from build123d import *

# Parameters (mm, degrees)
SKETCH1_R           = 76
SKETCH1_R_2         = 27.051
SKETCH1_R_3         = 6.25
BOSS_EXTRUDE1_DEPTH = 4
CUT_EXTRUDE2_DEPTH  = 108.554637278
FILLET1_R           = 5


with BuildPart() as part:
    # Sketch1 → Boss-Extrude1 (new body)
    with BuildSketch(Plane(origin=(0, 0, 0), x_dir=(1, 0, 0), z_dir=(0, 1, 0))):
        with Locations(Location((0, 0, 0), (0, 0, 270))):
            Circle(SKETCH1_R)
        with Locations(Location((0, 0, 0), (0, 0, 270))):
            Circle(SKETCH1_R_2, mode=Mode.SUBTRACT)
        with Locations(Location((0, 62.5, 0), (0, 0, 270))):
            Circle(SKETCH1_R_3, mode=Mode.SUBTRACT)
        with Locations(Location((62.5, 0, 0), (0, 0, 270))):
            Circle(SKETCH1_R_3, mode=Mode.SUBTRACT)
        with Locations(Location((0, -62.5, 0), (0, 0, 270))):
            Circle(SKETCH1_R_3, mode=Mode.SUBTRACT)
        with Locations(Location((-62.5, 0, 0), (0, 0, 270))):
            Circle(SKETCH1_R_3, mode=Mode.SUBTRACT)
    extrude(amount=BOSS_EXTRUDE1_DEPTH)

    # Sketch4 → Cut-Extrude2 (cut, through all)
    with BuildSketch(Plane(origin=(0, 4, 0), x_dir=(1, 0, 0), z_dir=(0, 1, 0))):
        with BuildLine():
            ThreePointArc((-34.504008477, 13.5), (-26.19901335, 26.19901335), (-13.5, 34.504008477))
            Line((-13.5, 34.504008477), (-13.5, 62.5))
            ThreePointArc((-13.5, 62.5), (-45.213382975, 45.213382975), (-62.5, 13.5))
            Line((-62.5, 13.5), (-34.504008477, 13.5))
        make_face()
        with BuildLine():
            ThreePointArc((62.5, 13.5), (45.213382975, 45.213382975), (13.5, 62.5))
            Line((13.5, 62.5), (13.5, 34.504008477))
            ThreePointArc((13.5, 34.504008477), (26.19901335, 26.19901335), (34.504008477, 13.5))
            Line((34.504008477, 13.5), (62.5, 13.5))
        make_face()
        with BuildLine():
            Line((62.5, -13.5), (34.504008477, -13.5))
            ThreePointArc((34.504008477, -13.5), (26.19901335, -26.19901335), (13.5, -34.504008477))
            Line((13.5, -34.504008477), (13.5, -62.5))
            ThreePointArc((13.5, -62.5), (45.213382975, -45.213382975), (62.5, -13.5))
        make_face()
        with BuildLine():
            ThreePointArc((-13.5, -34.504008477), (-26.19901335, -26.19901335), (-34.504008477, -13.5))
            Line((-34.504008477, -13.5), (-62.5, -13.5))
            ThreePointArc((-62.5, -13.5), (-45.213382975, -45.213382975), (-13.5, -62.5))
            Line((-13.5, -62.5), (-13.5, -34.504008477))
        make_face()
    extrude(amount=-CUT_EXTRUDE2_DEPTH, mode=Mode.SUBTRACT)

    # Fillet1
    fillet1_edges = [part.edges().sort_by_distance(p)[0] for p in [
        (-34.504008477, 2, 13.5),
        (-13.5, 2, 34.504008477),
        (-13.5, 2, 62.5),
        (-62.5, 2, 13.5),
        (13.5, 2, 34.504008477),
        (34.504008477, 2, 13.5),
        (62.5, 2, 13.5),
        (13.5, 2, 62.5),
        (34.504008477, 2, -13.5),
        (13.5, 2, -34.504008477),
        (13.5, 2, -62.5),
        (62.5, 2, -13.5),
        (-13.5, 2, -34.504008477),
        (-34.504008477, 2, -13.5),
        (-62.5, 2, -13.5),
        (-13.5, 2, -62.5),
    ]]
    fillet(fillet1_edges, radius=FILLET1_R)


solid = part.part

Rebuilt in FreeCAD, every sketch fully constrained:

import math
import FreeCAD as App
import Part
import Sketcher
from FreeCAD import Vector


def edges_at(feature, points):
    """Names of the edges that pass closest to the given points."""
    edges = feature.Shape.Edges
    near = lambda p: min(range(len(edges)), key=lambda i: edges[i].distToShape(Part.Vertex(*p))[0])
    return sorted({f"Edge{near(p) + 1}" for p in points})

doc = App.newDocument("Part")
body = doc.addObject("PartDesign::Body", "Body")

# Sketch on XZ plane
sketch1 = doc.addObject("Sketcher::SketchObject", "Sketch")
body.addObject(sketch1)
sketch1.AttachmentSupport = (doc.XZ_Plane, [""])
sketch1.MapMode = "FlatFace"
sketch1.addGeometry(Part.Circle(Vector(0, 0, 0), Vector(0, 0, 1), 76), False)
sketch1.addGeometry(Part.Circle(Vector(0, -62, 0), Vector(0, 0, 1), 6), False)
sketch1.addGeometry(Part.Circle(Vector(-62, 0, 0), Vector(0, 0, 1), 6), False)
sketch1.addGeometry(Part.Circle(Vector(0, 0, 0), Vector(0, 0, 1), 27), False)
sketch1.addGeometry(Part.Circle(Vector(0, 62, 0), Vector(0, 0, 1), 6), False)
sketch1.addGeometry(Part.Circle(Vector(62, 0, 0), Vector(0, 0, 1), 6), False)
sketch1.addConstraint(Sketcher.Constraint("Coincident", 0, 3, -1, 1))
sketch1.addConstraint(Sketcher.Constraint("Coincident", 3, 3, -1, 1))
sketch1.addConstraint(Sketcher.Constraint("Equal", 1, 2))
sketch1.addConstraint(Sketcher.Constraint("Equal", 2, 4))
sketch1.addConstraint(Sketcher.Constraint("Equal", 4, 5))
sketch1.addConstraint(Sketcher.Constraint("Symmetric", 1, 3, 4, 3, -1, 1))
sketch1.addConstraint(Sketcher.Constraint("Symmetric", 2, 3, 5, 3, -1, 1))
sketch1.addConstraint(Sketcher.Constraint("PointOnObject", 1, 3, -2))
sketch1.addConstraint(Sketcher.Constraint("PointOnObject", 2, 3, -1))
sketch1.addConstraint(Sketcher.Constraint("Diameter", 0, 152.0))
sketch1.addConstraint(Sketcher.Constraint("Diameter", 1, 12.5))
sketch1.addConstraint(Sketcher.Constraint("Diameter", 3, 54.102))
sketch1.addConstraint(Sketcher.Constraint("DistanceY", 1, 3, 4, 3, 125.0))
sketch1.addConstraint(Sketcher.Constraint("DistanceX", 2, 3, 5, 3, 125.0))
pad1 = doc.addObject("PartDesign::Pad", "Pad")
body.addObject(pad1)
pad1.Profile = sketch1
pad1.Length = 4
pad1.Reversed = True

# Sketch on XZ plane
sketch2 = doc.addObject("Sketcher::SketchObject", "Sketch001")
body.addObject(sketch2)
sketch2.AttachmentSupport = (doc.XZ_Plane, [""])
sketch2.MapMode = "FlatFace"
sketch2.AttachmentOffset = App.Placement(Vector(0, 0, -4), App.Rotation())
sketch2.addGeometry(Part.ArcOfCircle(Part.Circle(Vector(0, 0, 0), Vector(0, 0, 1), 37), math.radians(-159), math.radians(-111)), False)
sketch2.addGeometry(Part.LineSegment(Vector(-14, -35, 0), Vector(-14, -62, 0)), False)
sketch2.addGeometry(Part.ArcOfCircle(Part.Circle(Vector(0, 0, 0), Vector(0, 0, 1), 64), math.radians(-168), math.radians(-102)), False)
sketch2.addGeometry(Part.LineSegment(Vector(-62, -14, 0), Vector(-35, -14, 0)), False)
sketch2.addGeometry(Part.ArcOfCircle(Part.Circle(Vector(0, 0, 0), Vector(0, 0, 1), 64), math.radians(-78), math.radians(-12)), False)
sketch2.addGeometry(Part.LineSegment(Vector(14, -62, 0), Vector(14, -35, 0)), False)
sketch2.addGeometry(Part.ArcOfCircle(Part.Circle(Vector(0, 0, 0), Vector(0, 0, 1), 37), math.radians(-69), math.radians(-21)), False)
sketch2.addGeometry(Part.LineSegment(Vector(35, -14, 0), Vector(62, -14, 0)), False)
sketch2.addGeometry(Part.LineSegment(Vector(62, 14, 0), Vector(35, 14, 0)), False)
sketch2.addGeometry(Part.ArcOfCircle(Part.Circle(Vector(0, 0, 0), Vector(0, 0, 1), 37), math.radians(21), math.radians(69)), False)
sketch2.addGeometry(Part.LineSegment(Vector(14, 35, 0), Vector(14, 62, 0)), False)
sketch2.addGeometry(Part.ArcOfCircle(Part.Circle(Vector(0, 0, 0), Vector(0, 0, 1), 64), math.radians(12), math.radians(78)), False)
sketch2.addGeometry(Part.ArcOfCircle(Part.Circle(Vector(0, 0, 0), Vector(0, 0, 1), 37), math.radians(111), math.radians(159)), False)
sketch2.addGeometry(Part.LineSegment(Vector(-35, 14, 0), Vector(-62, 14, 0)), False)
sketch2.addGeometry(Part.ArcOfCircle(Part.Circle(Vector(0, 0, 0), Vector(0, 0, 1), 64), math.radians(102), math.radians(168)), False)
sketch2.addGeometry(Part.LineSegment(Vector(-14, 62, 0), Vector(-14, 35, 0)), False)
sketch2.addConstraint(Sketcher.Constraint("Coincident", 0, 2, 1, 1))
sketch2.addConstraint(Sketcher.Constraint("Coincident", 1, 2, 2, 2))
sketch2.addConstraint(Sketcher.Constraint("Coincident", 2, 1, 3, 1))
sketch2.addConstraint(Sketcher.Constraint("Coincident", 3, 2, 0, 1))
sketch2.addConstraint(Sketcher.Constraint("Coincident", 4, 1, 5, 1))
sketch2.addConstraint(Sketcher.Constraint("Coincident", 5, 2, 6, 1))
sketch2.addConstraint(Sketcher.Constraint("Coincident", 6, 2, 7, 1))
sketch2.addConstraint(Sketcher.Constraint("Coincident", 7, 2, 4, 2))
sketch2.addConstraint(Sketcher.Constraint("Coincident", 8, 2, 9, 1))
sketch2.addConstraint(Sketcher.Constraint("Coincident", 9, 2, 10, 1))
sketch2.addConstraint(Sketcher.Constraint("Coincident", 10, 2, 11, 2))
sketch2.addConstraint(Sketcher.Constraint("Coincident", 11, 1, 8, 1))
sketch2.addConstraint(Sketcher.Constraint("Coincident", 12, 2, 13, 1))
sketch2.addConstraint(Sketcher.Constraint("Coincident", 13, 2, 14, 2))
sketch2.addConstraint(Sketcher.Constraint("Coincident", 14, 1, 15, 1))
sketch2.addConstraint(Sketcher.Constraint("Coincident", 15, 2, 12, 1))
sketch2.addConstraint(Sketcher.Constraint("Vertical", 1))
sketch2.addConstraint(Sketcher.Constraint("Horizontal", 3))
sketch2.addConstraint(Sketcher.Constraint("Vertical", 5))
sketch2.addConstraint(Sketcher.Constraint("Horizontal", 7))
sketch2.addConstraint(Sketcher.Constraint("Horizontal", 8))
sketch2.addConstraint(Sketcher.Constraint("Vertical", 10))
sketch2.addConstraint(Sketcher.Constraint("Horizontal", 13))
sketch2.addConstraint(Sketcher.Constraint("Vertical", 15))
sketch2.addConstraint(Sketcher.Constraint("Coincident", 0, 3, -1, 1))
sketch2.addConstraint(Sketcher.Constraint("Coincident", 2, 3, -1, 1))
sketch2.addConstraint(Sketcher.Constraint("Coincident", 4, 3, -1, 1))
sketch2.addConstraint(Sketcher.Constraint("Coincident", 6, 3, -1, 1))
sketch2.addConstraint(Sketcher.Constraint("Coincident", 9, 3, -1, 1))
sketch2.addConstraint(Sketcher.Constraint("Coincident", 11, 3, -1, 1))
sketch2.addConstraint(Sketcher.Constraint("Coincident", 12, 3, -1, 1))
sketch2.addConstraint(Sketcher.Constraint("Coincident", 14, 3, -1, 1))
sketch2.addConstraint(Sketcher.Constraint("Equal", 2, 4))
sketch2.addConstraint(Sketcher.Constraint("Equal", 0, 6))
sketch2.addConstraint(Sketcher.Constraint("Equal", 6, 9))
sketch2.addConstraint(Sketcher.Constraint("Equal", 4, 11))
sketch2.addConstraint(Sketcher.Constraint("Equal", 9, 12))
sketch2.addConstraint(Sketcher.Constraint("Equal", 11, 14))
sketch2.addConstraint(Sketcher.Constraint("Horizontal", 1, 2, 4, 1))
sketch2.addConstraint(Sketcher.Constraint("Horizontal", 3, 2, 6, 2))
sketch2.addConstraint(Sketcher.Constraint("Horizontal", 11, 1, 12, 2))
sketch2.addConstraint(Sketcher.Constraint("Horizontal", 10, 2, 14, 1))
sketch2.addConstraint(Sketcher.Constraint("Vertical", 6, 2, 8, 2))
sketch2.addConstraint(Sketcher.Constraint("Vertical", 5, 2, 9, 2))
sketch2.addConstraint(Sketcher.Constraint("Equal", 13, 1))
sketch2.addConstraint(Sketcher.Constraint("Radius", 0, 37.051))
sketch2.addConstraint(Sketcher.Constraint("DistanceX", 2, 1, 0, 2, 49.0))
sketch2.addConstraint(Sketcher.Constraint("DistanceX", 1, 2, 4, 1, 27.0))
pocket1 = doc.addObject("PartDesign::Pocket", "Pocket")
body.addObject(pocket1)
pocket1.Profile = sketch2
pocket1.Type = "ThroughAll"
pocket1.Reversed = True
doc.recompute()

fillet = doc.addObject("PartDesign::Fillet", "Fillet")
body.addObject(fillet)
fillet.Base = (pocket1, edges_at(pocket1, [
    (-34.504, 2, 13.5),
    (-13.5, 2, 34.504),
    (-13.5, 2, 62.5),
    (-62.5, 2, 13.5),
    (13.5, 2, 34.504),
    (34.504, 2, 13.5),
    (62.5, 2, 13.5),
    (13.5, 2, 62.5),
    (34.504, 2, -13.5),
    (13.5, 2, -34.504),
    (13.5, 2, -62.5),
    (62.5, 2, -13.5),
    (-13.5, 2, -34.504),
    (-34.504, 2, -13.5),
    (-62.5, 2, -13.5),
    (-13.5, 2, -62.5),
]))
fillet.Radius = 5

doc.recompute()
